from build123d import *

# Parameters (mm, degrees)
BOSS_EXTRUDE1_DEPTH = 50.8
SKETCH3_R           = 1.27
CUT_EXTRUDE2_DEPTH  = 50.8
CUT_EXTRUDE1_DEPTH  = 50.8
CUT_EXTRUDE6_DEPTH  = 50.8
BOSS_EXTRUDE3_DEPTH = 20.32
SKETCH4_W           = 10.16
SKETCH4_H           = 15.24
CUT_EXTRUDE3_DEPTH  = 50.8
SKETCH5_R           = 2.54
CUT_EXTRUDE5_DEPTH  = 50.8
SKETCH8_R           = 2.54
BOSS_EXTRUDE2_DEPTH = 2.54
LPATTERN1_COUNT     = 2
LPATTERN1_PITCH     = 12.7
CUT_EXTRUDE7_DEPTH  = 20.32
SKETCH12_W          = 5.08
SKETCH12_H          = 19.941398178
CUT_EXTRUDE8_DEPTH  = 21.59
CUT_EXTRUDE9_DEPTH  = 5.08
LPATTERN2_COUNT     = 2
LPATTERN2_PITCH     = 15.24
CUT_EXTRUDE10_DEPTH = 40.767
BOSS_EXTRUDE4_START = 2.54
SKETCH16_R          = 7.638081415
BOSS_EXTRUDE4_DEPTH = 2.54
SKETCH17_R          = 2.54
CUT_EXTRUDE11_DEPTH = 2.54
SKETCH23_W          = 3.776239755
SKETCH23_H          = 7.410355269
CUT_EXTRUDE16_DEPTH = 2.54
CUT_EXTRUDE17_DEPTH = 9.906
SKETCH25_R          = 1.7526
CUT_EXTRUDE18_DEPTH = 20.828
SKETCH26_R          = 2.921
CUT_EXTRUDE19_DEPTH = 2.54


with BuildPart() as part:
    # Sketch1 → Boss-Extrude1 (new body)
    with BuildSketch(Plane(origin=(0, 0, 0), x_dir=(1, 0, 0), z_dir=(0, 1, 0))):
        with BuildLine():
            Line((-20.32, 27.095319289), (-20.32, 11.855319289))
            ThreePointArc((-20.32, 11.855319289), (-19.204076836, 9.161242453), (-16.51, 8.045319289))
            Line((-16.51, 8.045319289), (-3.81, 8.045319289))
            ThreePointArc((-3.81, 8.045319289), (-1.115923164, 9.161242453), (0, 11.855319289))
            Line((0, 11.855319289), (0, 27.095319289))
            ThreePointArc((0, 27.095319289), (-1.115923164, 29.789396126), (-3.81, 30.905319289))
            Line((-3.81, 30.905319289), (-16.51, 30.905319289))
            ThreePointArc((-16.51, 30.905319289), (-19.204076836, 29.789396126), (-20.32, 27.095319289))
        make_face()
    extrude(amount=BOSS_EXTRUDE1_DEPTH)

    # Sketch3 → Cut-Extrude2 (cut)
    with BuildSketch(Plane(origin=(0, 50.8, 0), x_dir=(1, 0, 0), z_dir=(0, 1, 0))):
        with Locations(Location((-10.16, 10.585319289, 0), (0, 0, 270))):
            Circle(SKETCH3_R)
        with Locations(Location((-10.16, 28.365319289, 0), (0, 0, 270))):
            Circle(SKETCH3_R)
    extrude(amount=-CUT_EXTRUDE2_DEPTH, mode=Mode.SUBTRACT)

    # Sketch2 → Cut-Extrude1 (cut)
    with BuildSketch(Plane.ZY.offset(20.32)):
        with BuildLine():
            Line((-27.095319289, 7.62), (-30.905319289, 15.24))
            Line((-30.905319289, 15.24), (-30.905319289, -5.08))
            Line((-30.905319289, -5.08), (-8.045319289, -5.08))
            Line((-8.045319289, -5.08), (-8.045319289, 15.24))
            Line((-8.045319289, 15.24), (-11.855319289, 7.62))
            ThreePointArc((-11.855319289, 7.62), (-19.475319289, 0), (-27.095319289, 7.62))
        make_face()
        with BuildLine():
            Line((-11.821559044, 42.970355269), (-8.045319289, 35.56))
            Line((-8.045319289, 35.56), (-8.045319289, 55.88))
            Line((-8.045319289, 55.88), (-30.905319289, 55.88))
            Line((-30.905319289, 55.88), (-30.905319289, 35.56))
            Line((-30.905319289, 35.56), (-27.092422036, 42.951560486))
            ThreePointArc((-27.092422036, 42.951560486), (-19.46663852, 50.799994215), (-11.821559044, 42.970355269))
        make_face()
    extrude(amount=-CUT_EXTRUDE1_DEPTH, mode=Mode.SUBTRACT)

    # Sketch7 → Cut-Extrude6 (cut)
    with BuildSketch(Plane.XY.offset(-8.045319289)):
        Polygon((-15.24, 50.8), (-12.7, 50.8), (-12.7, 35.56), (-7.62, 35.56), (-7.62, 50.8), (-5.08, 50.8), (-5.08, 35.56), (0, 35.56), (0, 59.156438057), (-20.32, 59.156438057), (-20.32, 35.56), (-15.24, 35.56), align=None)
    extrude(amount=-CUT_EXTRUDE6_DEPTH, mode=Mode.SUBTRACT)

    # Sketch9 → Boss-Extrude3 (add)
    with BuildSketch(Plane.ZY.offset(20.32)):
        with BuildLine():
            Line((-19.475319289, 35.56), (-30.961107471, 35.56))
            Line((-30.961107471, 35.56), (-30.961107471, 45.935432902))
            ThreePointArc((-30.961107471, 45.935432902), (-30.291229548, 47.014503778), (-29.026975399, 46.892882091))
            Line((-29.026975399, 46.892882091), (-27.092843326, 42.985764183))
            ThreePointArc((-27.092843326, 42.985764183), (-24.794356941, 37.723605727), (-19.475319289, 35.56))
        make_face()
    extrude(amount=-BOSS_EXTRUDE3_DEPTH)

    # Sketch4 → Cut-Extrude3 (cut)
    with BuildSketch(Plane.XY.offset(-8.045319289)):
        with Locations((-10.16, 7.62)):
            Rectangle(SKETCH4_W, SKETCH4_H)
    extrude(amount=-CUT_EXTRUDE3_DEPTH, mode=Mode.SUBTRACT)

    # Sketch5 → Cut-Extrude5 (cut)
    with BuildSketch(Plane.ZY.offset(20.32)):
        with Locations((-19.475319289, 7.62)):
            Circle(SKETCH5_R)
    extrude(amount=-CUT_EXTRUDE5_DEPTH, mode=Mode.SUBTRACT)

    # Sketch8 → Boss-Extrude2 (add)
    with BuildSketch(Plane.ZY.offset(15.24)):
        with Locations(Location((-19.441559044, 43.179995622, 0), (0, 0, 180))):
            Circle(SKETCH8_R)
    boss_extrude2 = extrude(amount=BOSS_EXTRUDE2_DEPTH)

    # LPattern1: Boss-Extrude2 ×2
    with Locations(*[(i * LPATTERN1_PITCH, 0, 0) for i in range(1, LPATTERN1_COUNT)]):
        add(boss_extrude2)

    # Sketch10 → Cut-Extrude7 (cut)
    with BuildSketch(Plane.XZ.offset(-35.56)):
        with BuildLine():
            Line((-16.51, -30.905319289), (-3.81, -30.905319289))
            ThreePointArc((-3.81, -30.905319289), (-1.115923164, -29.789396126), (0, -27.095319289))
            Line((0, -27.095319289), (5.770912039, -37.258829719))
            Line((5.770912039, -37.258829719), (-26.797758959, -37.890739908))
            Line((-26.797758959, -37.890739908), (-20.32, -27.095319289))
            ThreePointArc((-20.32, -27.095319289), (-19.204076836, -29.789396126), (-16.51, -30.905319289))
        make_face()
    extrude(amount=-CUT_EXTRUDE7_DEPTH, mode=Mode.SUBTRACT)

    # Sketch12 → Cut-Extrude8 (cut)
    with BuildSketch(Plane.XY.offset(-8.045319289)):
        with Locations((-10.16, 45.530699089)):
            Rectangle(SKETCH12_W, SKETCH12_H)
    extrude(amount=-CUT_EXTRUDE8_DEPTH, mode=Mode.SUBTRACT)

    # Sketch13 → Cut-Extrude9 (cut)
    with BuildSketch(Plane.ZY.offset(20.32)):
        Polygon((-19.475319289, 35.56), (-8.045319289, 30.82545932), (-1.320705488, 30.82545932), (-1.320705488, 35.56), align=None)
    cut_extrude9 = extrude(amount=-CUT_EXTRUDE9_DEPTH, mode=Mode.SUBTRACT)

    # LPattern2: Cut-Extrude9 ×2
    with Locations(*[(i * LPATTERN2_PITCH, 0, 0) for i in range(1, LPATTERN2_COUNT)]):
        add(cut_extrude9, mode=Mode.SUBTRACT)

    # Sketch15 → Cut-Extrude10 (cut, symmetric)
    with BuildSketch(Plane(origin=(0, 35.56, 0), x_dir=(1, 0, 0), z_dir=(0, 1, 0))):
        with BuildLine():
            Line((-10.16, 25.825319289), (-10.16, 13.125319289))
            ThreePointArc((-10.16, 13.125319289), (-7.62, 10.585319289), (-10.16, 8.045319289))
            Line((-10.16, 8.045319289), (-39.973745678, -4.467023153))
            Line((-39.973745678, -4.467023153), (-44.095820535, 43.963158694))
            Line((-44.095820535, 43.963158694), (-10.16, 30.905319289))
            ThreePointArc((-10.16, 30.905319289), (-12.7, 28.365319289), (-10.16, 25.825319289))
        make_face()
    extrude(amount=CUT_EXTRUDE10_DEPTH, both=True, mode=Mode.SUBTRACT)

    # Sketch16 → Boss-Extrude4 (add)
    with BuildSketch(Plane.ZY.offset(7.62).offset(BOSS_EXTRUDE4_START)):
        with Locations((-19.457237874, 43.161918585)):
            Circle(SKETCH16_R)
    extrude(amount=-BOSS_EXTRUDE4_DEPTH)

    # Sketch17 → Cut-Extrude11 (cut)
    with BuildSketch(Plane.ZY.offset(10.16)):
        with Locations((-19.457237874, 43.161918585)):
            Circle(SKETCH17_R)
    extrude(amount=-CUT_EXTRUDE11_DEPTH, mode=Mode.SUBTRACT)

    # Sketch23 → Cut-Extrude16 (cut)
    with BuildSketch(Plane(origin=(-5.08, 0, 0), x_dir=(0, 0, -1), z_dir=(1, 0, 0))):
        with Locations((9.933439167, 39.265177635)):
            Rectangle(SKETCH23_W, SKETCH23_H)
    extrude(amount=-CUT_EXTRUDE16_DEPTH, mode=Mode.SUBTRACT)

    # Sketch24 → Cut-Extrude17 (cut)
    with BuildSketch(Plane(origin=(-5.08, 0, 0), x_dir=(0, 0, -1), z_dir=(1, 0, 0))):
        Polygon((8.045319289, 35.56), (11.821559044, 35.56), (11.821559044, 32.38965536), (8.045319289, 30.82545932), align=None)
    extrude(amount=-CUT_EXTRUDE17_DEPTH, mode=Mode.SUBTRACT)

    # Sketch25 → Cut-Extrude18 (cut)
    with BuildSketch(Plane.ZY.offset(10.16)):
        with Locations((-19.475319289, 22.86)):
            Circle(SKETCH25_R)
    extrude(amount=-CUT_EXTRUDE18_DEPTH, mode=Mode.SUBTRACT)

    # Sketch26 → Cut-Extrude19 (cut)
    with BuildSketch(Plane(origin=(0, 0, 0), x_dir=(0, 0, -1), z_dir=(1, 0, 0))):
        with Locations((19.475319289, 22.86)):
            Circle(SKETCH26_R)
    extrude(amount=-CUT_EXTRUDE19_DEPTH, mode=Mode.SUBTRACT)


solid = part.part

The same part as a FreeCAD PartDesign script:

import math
import FreeCAD as App
import Part
import Sketcher
Q = App.Units.Quantity


def add_polygon(sketch, points):
    """Adds a closed chain of lines whose ends are joined by coincident constraints."""
    first, n = sketch.GeometryCount, len(points)
    for a, b in zip(points, points[1:] + points[:1]):
        sketch.addGeometry(Part.LineSegment(App.Vector(*a, 0), App.Vector(*b, 0)), False)
    for i in range(n):
        sketch.addConstraint(Sketcher.Constraint("Coincident", first + i, 2, first + (i + 1) % n, 1))

doc = App.newDocument("Part")
body = doc.addObject("PartDesign::Body", "Body")

# Sketch on XZ plane
sketch1 = body.newObject("Sketcher::SketchObject", "Sketch")
sketch1.AttachmentSupport = (doc.getObject("XZ_Plane"), [""])
sketch1.MapMode = "FlatFace"
sketch1.addGeometry(Part.LineSegment(App.Vector(-20.32, -27.095319, 0), App.Vector(-20.32, -11.855319, 0)), False)
sketch1.addGeometry(Part.ArcOfCircle(Part.Circle(App.Vector(-16.51, -11.855319, 0), App.Vector(0, 0, 1), 3.81), math.radians(90), math.radians(180)), False)
sketch1.addGeometry(Part.LineSegment(App.Vector(-16.51, -8.045319, 0), App.Vector(-3.81, -8.045319, 0)), False)
sketch1.addGeometry(Part.ArcOfCircle(Part.Circle(App.Vector(-3.81, -11.855319, 0), App.Vector(0, 0, 1), 3.81), math.radians(0), math.radians(90)), False)
sketch1.addGeometry(Part.LineSegment(App.Vector(0, -11.855319, 0), App.Vector(0, -27.095319, 0)), False)
sketch1.addGeometry(Part.ArcOfCircle(Part.Circle(App.Vector(-3.81, -27.095319, 0), App.Vector(0, 0, 1), 3.81), math.radians(-90), math.radians(0)), False)
sketch1.addGeometry(Part.LineSegment(App.Vector(-3.81, -30.905319, 0), App.Vector(-16.51, -30.905319, 0)), False)
sketch1.addGeometry(Part.ArcOfCircle(Part.Circle(App.Vector(-16.51, -27.095319, 0), App.Vector(0, 0, 1), 3.81), math.radians(180), math.radians(270)), False)
sketch1.addConstraint(Sketcher.Constraint("Tangent", 0, 2, 1, 2))
sketch1.addConstraint(Sketcher.Constraint("Tangent", 1, 1, 2, 1))
sketch1.addConstraint(Sketcher.Constraint("Tangent", 2, 2, 3, 2))
sketch1.addConstraint(Sketcher.Constraint("Tangent", 3, 1, 4, 1))
sketch1.addConstraint(Sketcher.Constraint("Tangent", 4, 2, 5, 2))
sketch1.addConstraint(Sketcher.Constraint("Tangent", 5, 1, 6, 1))
sketch1.addConstraint(Sketcher.Constraint("Tangent", 6, 2, 7, 2))
sketch1.addConstraint(Sketcher.Constraint("Tangent", 7, 1, 0, 1))
sketch1.addConstraint(Sketcher.Constraint("Vertical", 0))
sketch1.addConstraint(Sketcher.Constraint("Horizontal", 2))
sketch1.addConstraint(Sketcher.Constraint("Vertical", 4))
sketch1.addConstraint(Sketcher.Constraint("Horizontal", 6))
sketch1.addConstraint(Sketcher.Constraint("Equal", 1, 3))
sketch1.addConstraint(Sketcher.Constraint("Equal", 3, 5))
sketch1.addConstraint(Sketcher.Constraint("Equal", 5, 7))
sketch1.addConstraint(Sketcher.Constraint("PointOnObject", 3, 1, -2))
sketch1.addConstraint(Sketcher.Constraint("Radius", 1, Q("0.15 in")))
sketch1.addConstraint(Sketcher.Constraint("DistanceX", 2, 1, 2, 2, Q("0.5 in")))
sketch1.addConstraint(Sketcher.Constraint("DistanceY", 0, 1, 0, 2, Q("0.6 in")))
sketch1.addConstraint(Sketcher.Constraint("DistanceY", 1, 3, -1, 1, Q("11.855319 mm")))
pad1 = body.newObject("PartDesign::Pad", "Pad")
pad1.Profile = sketch1
pad1.Length = Q("2 in")
pad1.Reversed = True

# Sketch on XZ plane
sketch2 = body.newObject("Sketcher::SketchObject", "Sketch001")
sketch2.AttachmentSupport = (doc.getObject("XZ_Plane"), [""])
sketch2.MapMode = "FlatFace"
sketch2.AttachmentOffset = App.Placement(App.Vector(0, 0, -2 * 25.4), App.Rotation())
sketch2.addGeometry(Part.Circle(App.Vector(-10.16, -10.585319, 0), App.Vector(0, 0, 1), 1.27), False)
sketch2.addGeometry(Part.Circle(App.Vector(-10.16, -28.365319, 0), App.Vector(0, 0, 1), 1.27), False)
sketch2.addConstraint(Sketcher.Constraint("Equal", 0, 1))
sketch2.addConstraint(Sketcher.Constraint("Vertical", 0, 3, 1, 3))
sketch2.addConstraint(Sketcher.Constraint("Diameter", 0, Q("0.1 in")))
sketch2.addConstraint(Sketcher.Constraint("DistanceX", 0, 3, -1, 1, Q("0.4 in")))
sketch2.addConstraint(Sketcher.Constraint("DistanceY", 1, 3, 0, 3, Q("0.7 in")))
sketch2.addConstraint(Sketcher.Constraint("DistanceY", 0, 3, -1, 1, Q("10.585319 mm")))
pocket1 = body.newObject("PartDesign::Pocket", "Pocket")
pocket1.Profile = sketch2
pocket1.Length = Q("2 in")
pocket1.Reversed = True

# Sketch on YZ plane
sketch3 = body.newObject("Sketcher::SketchObject", "Sketch002")
sketch3.AttachmentSupport = (doc.getObject("YZ_Plane"), [""])
sketch3.MapMode = "FlatFace"
sketch3.AttachmentOffset = App.Placement(App.Vector(0, 0, -0.8 * 25.4), App.Rotation())
sketch3.addGeometry(Part.LineSegment(App.Vector(7.62, -27.095319, 0), App.Vector(15.24, -30.905319, 0)), False)
sketch3.addGeometry(Part.LineSegment(App.Vector(15.24, -30.905319, 0), App.Vector(-5.08, -30.905319, 0)), False)
sketch3.addGeometry(Part.LineSegment(App.Vector(-5.08, -30.905319, 0), App.Vector(-5.08, -8.045319, 0)), False)
sketch3.addGeometry(Part.LineSegment(App.Vector(-5.08, -8.045319, 0), App.Vector(15.24, -8.045319, 0)), False)
sketch3.addGeometry(Part.LineSegment(App.Vector(15.24, -8.045319, 0), App.Vector(7.62, -11.855319, 0)), False)
sketch3.addGeometry(Part.ArcOfCircle(Part.Circle(App.Vector(7.62, -19.475319, 0), App.Vector(0, 0, 1), 7.62), math.radians(90), math.radians(270)), False)
sketch3.addGeometry(Part.LineSegment(App.Vector(42.970355, -11.821559, 0), App.Vector(35.56, -8.045319, 0)), False)
sketch3.addGeometry(Part.LineSegment(App.Vector(35.56, -8.045319, 0), App.Vector(55.88, -8.045319, 0)), False)
sketch3.addGeometry(Part.LineSegment(App.Vector(55.88, -8.045319, 0), App.Vector(55.88, -30.905319, 0)), False)
sketch3.addGeometry(Part.LineSegment(App.Vector(55.88, -30.905319, 0), App.Vector(35.56, -30.905319, 0)), False)
sketch3.addGeometry(Part.LineSegment(App.Vector(35.56, -30.905319, 0), App.Vector(42.95156, -27.092422, 0)), False)
sketch3.addGeometry(Part.ArcOfCircle(Part.Circle(App.Vector(43.161919, -19.457238, 0), App.Vector(0, 0, 1), 7.638081), math.radians(-91.578165), math.radians(91.437131)), False)
sketch3.addConstraint(Sketcher.Constraint("Coincident", 0, 2, 1, 1))
sketch3.addConstraint(Sketcher.Constraint("Coincident", 1, 2, 2, 1))
sketch3.addConstraint(Sketcher.Constraint("Coincident", 2, 2, 3, 1))
sketch3.addConstraint(Sketcher.Constraint("Coincident", 3, 2, 4, 1))
sketch3.addConstraint(Sketcher.Constraint("Coincident", 4, 2, 5, 1))
sketch3.addConstraint(Sketcher.Constraint("Coincident", 5, 2, 0, 1))
sketch3.addConstraint(Sketcher.Constraint("Coincident", 6, 2, 7, 1))
sketch3.addConstraint(Sketcher.Constraint("Coincident", 7, 2, 8, 1))
sketch3.addConstraint(Sketcher.Constraint("Coincident", 8, 2, 9, 1))
sketch3.addConstraint(Sketcher.Constraint("Coincident", 9, 2, 10, 1))
sketch3.addConstraint(Sketcher.Constraint("Coincident", 10, 2, 11, 1))
sketch3.addConstraint(Sketcher.Constraint("Coincident", 11, 2, 6, 1))
sketch3.addConstraint(Sketcher.Constraint("Horizontal", 1))
sketch3.addConstraint(Sketcher.Constraint("Vertical", 2))
sketch3.addConstraint(Sketcher.Constraint("Horizontal", 3))
sketch3.addConstraint(Sketcher.Constraint("Horizontal", 7))
sketch3.addConstraint(Sketcher.Constraint("Vertical", 8))
sketch3.addConstraint(Sketcher.Constraint("Horizontal", 9))
sketch3.addConstraint(Sketcher.Constraint("Horizontal", 3, 2, 6, 2))
sketch3.addConstraint(Sketcher.Constraint("Horizontal", 1, 2, 8, 2))
sketch3.addConstraint(Sketcher.Constraint("Vertical", 0, 2, 3, 2))
sketch3.addConstraint(Sketcher.Constraint("Vertical", 5, 3, 4, 2))
sketch3.addConstraint(Sketcher.Constraint("Vertical", 4, 2, 5, 2))
sketch3.addConstraint(Sketcher.Constraint("Vertical", 6, 2, 9, 2))
sketch3.addConstraint(Sketcher.Constraint("Equal", 3, 7))
sketch3.addConstraint(Sketcher.Constraint("Equal", 0, 4))
sketch3.addConstraint(Sketcher.Constraint("Equal", 6, 10))
sketch3.addConstraint(Sketcher.Constraint("Radius", 5, Q("0.3 in")))
sketch3.addConstraint(Sketcher.Constraint("DistanceX", 1, 2, 1, 1, Q("0.8 in")))
sketch3.addConstraint(Sketcher.Constraint("DistanceY", 2, 1, 2, 2, Q("0.9 in")))
sketch3.addConstraint(Sketcher.Constraint("DistanceX", -1, 1, 5, 3, Q("0.3 in")))
sketch3.addConstraint(Sketcher.Constraint("DistanceX", -1, 1, 0, 2, Q("0.6 in")))
sketch3.addConstraint(Sketcher.Constraint("DistanceX", -1, 1, 6, 2, Q("1.4 in")))
sketch3.addConstraint(Sketcher.Constraint("Radius", 11, Q("7.638081 mm")))
sketch3.addConstraint(Sketcher.Constraint("Distance", 6, Q("8.317052 mm")))
sketch3.addConstraint(Sketcher.Constraint("DistanceY", 5, 3, -1, 1, Q("19.475319 mm")))
sketch3.addConstraint(Sketcher.Constraint("DistanceX", -1, 1, 11, 3, Q("43.161919 mm")))
sketch3.addConstraint(Sketcher.Constraint("DistanceX", -1, 1, 10, 2, Q("42.95156 mm")))
pocket2 = body.newObject("PartDesign::Pocket", "Pocket001")
pocket2.Profile = sketch3
pocket2.Length = Q("2 in")
pocket2.Reversed = True

# Sketch on XY plane
sketch4 = body.newObject("Sketcher::SketchObject", "Sketch003")
sketch4.AttachmentSupport = (doc.getObject("XY_Plane"), [""])
sketch4.MapMode = "FlatFace"
sketch4.AttachmentOffset = App.Placement(App.Vector(0, 0, -8.045319), App.Rotation())
add_polygon(sketch4, [(-15.24, 50.8), (-12.7, 50.8), (-12.7, 35.56), (-7.62, 35.56), (-7.62, 50.8), (-5.08, 50.8), (-5.08, 35.56), (0, 35.56), (0, 59.156438), (-20.32, 59.156438), (-20.32, 35.56), (-15.24, 35.56)])  # lines 0-11
sketch4.addConstraint(Sketcher.Constraint("Horizontal", 0))
sketch4.addConstraint(Sketcher.Constraint("Vertical", 1))
sketch4.addConstraint(Sketcher.Constraint("Horizontal", 2))
sketch4.addConstraint(Sketcher.Constraint("Vertical", 3))
sketch4.addConstraint(Sketcher.Constraint("Horizontal", 4))
sketch4.addConstraint(Sketcher.Constraint("Vertical", 5))
sketch4.addConstraint(Sketcher.Constraint("Horizontal", 6))
sketch4.addConstraint(Sketcher.Constraint("Vertical", 7))
sketch4.addConstraint(Sketcher.Constraint("Horizontal", 8))
sketch4.addConstraint(Sketcher.Constraint("Vertical", 9))
sketch4.addConstraint(Sketcher.Constraint("Horizontal", 10))
sketch4.addConstraint(Sketcher.Constraint("Vertical", 11))
sketch4.addConstraint(Sketcher.Constraint("PointOnObject", 6, 2, -2))
sketch4.addConstraint(Sketcher.Constraint("Horizontal", 0, 2, 3, 2))
sketch4.addConstraint(Sketcher.Constraint("Horizontal", 2, 2, 5, 2))
sketch4.addConstraint(Sketcher.Constraint("Horizontal", 6, 2, 9, 2))
sketch4.addConstraint(Sketcher.Constraint("Equal", 0, 4))
sketch4.addConstraint(Sketcher.Constraint("Equal", 2, 6))
sketch4.addConstraint(Sketcher.Constraint("Equal", 6, 10))
sketch4.addConstraint(Sketcher.Constraint("DistanceX", 0, 1, 0, 2, Q("0.1 in")))
sketch4.addConstraint(Sketcher.Constraint("DistanceX", 2, 1, 2, 2, Q("0.2 in")))
sketch4.addConstraint(Sketcher.Constraint("DistanceY", 1, 2, 1, 1, Q("0.6 in")))
sketch4.addConstraint(Sketcher.Constraint("DistanceY", -1, 1, 0, 2, Q("2 in")))
sketch4.addConstraint(Sketcher.Constraint("DistanceY", 7, 1, 7, 2, Q("23.596438 mm")))
pocket3 = body.newObject("PartDesign::Pocket", "Pocket002")
pocket3.Profile = sketch4
pocket3.Length = Q("2 in")

# Sketch on YZ plane
sketch5 = body.newObject("Sketcher::SketchObject", "Sketch004")
sketch5.AttachmentSupport = (doc.getObject("YZ_Plane"), [""])
sketch5.MapMode = "FlatFace"
sketch5.AttachmentOffset = App.Placement(App.Vector(0, 0, -0.8 * 25.4), App.Rotation())
sketch5.addGeometry(Part.LineSegment(App.Vector(35.56, -30.961107, 0), App.Vector(35.56, -19.475319, 0)), False)
sketch5.addGeometry(Part.ArcOfCircle(Part.Circle(App.Vector(43.18, -19.475319, 0), App.Vector(0, 0, 1), 7.62), math.radians(180), math.radians(268.539357)), False)
sketch5.addGeometry(Part.LineSegment(App.Vector(42.985764, -27.092843, 0), App.Vector(46.892882, -29.026975, 0)), False)
sketch5.addGeometry(Part.ArcOfCircle(Part.Circle(App.Vector(45.935433, -29.757059, 0), App.Vector(0, 0, 1), 1.204048), math.radians(-90), math.radians(37.326619)), False)
sketch5.addGeometry(Part.LineSegment(App.Vector(45.935433, -30.961107, 0), App.Vector(35.56, -30.961107, 0)), False)
sketch5.addConstraint(Sketcher.Constraint("Tangent", 0, 2, 1, 1))
sketch5.addConstraint(Sketcher.Constraint("Coincident", 1, 2, 2, 1))
sketch5.addConstraint(Sketcher.Constraint("Coincident", 2, 2, 3, 2))
sketch5.addConstraint(Sketcher.Constraint("Tangent", 3, 1, 4, 1))
sketch5.addConstraint(Sketcher.Constraint("Coincident", 4, 2, 0, 1))
sketch5.addConstraint(Sketcher.Constraint("Vertical", 0))
sketch5.addConstraint(Sketcher.Constraint("Horizontal", 4))
sketch5.addConstraint(Sketcher.Constraint("Radius", 1, Q("0.3 in")))
sketch5.addConstraint(Sketcher.Constraint("DistanceX", -1, 1, 1, 3, Q("1.7 in")))
sketch5.addConstraint(Sketcher.Constraint("Radius", 3, Q("1.204048 mm")))
sketch5.addConstraint(Sketcher.Constraint("DistanceY", 0, 1, 0, 2, Q("11.485788 mm")))
sketch5.addConstraint(Sketcher.Constraint("DistanceX", 4, 2, 4, 1, Q("10.375433 mm")))
sketch5.addConstraint(Sketcher.Constraint("DistanceY", 1, 3, -1, 1, Q("19.475319 mm")))
sketch5.addConstraint(Sketcher.Constraint("DistanceX", 1, 2, 3, 3, Q("2.949669 mm")))
sketch5.addConstraint(Sketcher.Constraint("DistanceX", 3, 3, 2, 2, Q("0.957449 mm")))
pad2 = body.newObject("PartDesign::Pad", "Pad001")
pad2.Profile = sketch5
pad2.Length = Q("0.8 in")

# Sketch on XY plane
sketch6 = body.newObject("Sketcher::SketchObject", "Sketch005")
sketch6.AttachmentSupport = (doc.getObject("XY_Plane"), [""])
sketch6.MapMode = "FlatFace"
sketch6.AttachmentOffset = App.Placement(App.Vector(0, 0, -8.045319), App.Rotation())
add_polygon(sketch6, [(-15.24, 15.24), (-15.24, 0), (-5.08, 0), (-5.08, 15.24)])  # lines 0-3
sketch6.addConstraint(Sketcher.Constraint("Vertical", 0))
sketch6.addConstraint(Sketcher.Constraint("Horizontal", 1))
sketch6.addConstraint(Sketcher.Constraint("Vertical", 2))
sketch6.addConstraint(Sketcher.Constraint("Horizontal", 3))
sketch6.addConstraint(Sketcher.Constraint("PointOnObject", 0, 2, -1))
sketch6.addConstraint(Sketcher.Constraint("DistanceX", 1, 1, 1, 2, Q("0.4 in")))
sketch6.addConstraint(Sketcher.Constraint("DistanceY", 0, 2, 0, 1, Q("0.6 in")))
sketch6.addConstraint(Sketcher.Constraint("DistanceX", 0, 2, -1, 1, Q("0.6 in")))
pocket4 = body.newObject("PartDesign::Pocket", "Pocket003")
pocket4.Profile = sketch6
pocket4.Length = Q("2 in")

# Sketch on YZ plane
sketch7 = body.newObject("Sketcher::SketchObject", "Sketch006")
sketch7.AttachmentSupport = (doc.getObject("YZ_Plane"), [""])
sketch7.MapMode = "FlatFace"
sketch7.AttachmentOffset = App.Placement(App.Vector(0, 0, -0.8 * 25.4), App.Rotation())
sketch7.addGeometry(Part.Circle(App.Vector(7.62, -19.475319, 0), App.Vector(0, 0, 1), 2.54), False)
sketch7.addConstraint(Sketcher.Constraint("Diameter", 0, Q("0.2 in")))
sketch7.addConstraint(Sketcher.Constraint("DistanceX", -1, 1, 0, 3, Q("0.3 in")))
sketch7.addConstraint(Sketcher.Constraint("DistanceY", 0, 3, -1, 1, Q("19.475319 mm")))
pocket5 = body.newObject("PartDesign::Pocket", "Pocket004")
pocket5.Profile = sketch7
pocket5.Length = Q("2 in")
pocket5.Reversed = True

# Sketch on YZ plane
sketch8 = body.newObject("Sketcher::SketchObject", "Sketch007")
sketch8.AttachmentSupport = (doc.getObject("YZ_Plane"), [""])
sketch8.MapMode = "FlatFace"
sketch8.AttachmentOffset = App.Placement(App.Vector(0, 0, -0.6 * 25.4), App.Rotation())
sketch8.addGeometry(Part.Circle(App.Vector(43.179996, -19.441559, 0), App.Vector(0, 0, 1), 2.54), False)
sketch8.addConstraint(Sketcher.Constraint("Diameter", 0, Q("0.2 in")))
sketch8.addConstraint(Sketcher.Constraint("DistanceX", -1, 1, 0, 3, Q("1.6999998 in")))
sketch8.addConstraint(Sketcher.Constraint("DistanceY", 0, 3, -1, 1, Q("19.441559 mm")))
pad3 = body.newObject("PartDesign::Pad", "Pad002")
pad3.Profile = sketch8
pad3.Length = Q("0.1 in")
pad3.Reversed = True
doc.recompute()

linearpattern = body.newObject("PartDesign::LinearPattern", "LinearPattern")
linearpattern.Originals = [pad3]
linearpattern.Direction = (doc.getObject("X_Axis"), [""])
linearpattern.Mode = "offset"
linearpattern.Offset = Q("0.5 in")
linearpattern.Occurrences = 2
body.Tip = linearpattern

# Sketch on XZ plane
sketch9 = body.newObject("Sketcher::SketchObject", "Sketch008")
sketch9.AttachmentSupport = (doc.getObject("XZ_Plane"), [""])
sketch9.MapMode = "FlatFace"
sketch9.AttachmentOffset = App.Placement(App.Vector(0, 0, -1.4 * 25.4), App.Rotation())
sketch9.addGeometry(Part.LineSegment(App.Vector(-3.81, -30.905319, 0), App.Vector(-16.51, -30.905319, 0)), False)
sketch9.addGeometry(Part.ArcOfCircle(Part.Circle(App.Vector(-16.51, -27.095319, 0), App.Vector(0, 0, 1), 3.81), math.radians(180), math.radians(270)), False)
sketch9.addGeometry(Part.LineSegment(App.Vector(-20.32, -27.095319, 0), App.Vector(-26.797759, -37.89074, 0)), False)
sketch9.addGeometry(Part.LineSegment(App.Vector(-26.797759, -37.89074, 0), App.Vector(5.770912, -37.25883, 0)), False)
sketch9.addGeometry(Part.LineSegment(App.Vector(5.770912, -37.25883, 0), App.Vector(0, -27.095319, 0)), False)
sketch9.addGeometry(Part.ArcOfCircle(Part.Circle(App.Vector(-3.81, -27.095319, 0), App.Vector(0, 0, 1), 3.81), math.radians(-90), math.radians(0)), False)
sketch9.addConstraint(Sketcher.Constraint("Tangent", 0, 2, 1, 2))
sketch9.addConstraint(Sketcher.Constraint("Coincident", 1, 1, 2, 1))
sketch9.addConstraint(Sketcher.Constraint("Coincident", 2, 2, 3, 1))
sketch9.addConstraint(Sketcher.Constraint("Coincident", 3, 2, 4, 1))
sketch9.addConstraint(Sketcher.Constraint("Coincident", 4, 2, 5, 2))
sketch9.addConstraint(Sketcher.Constraint("Tangent", 5, 1, 0, 1))
sketch9.addConstraint(Sketcher.Constraint("Horizontal", 0))
sketch9.addConstraint(Sketcher.Constraint("Equal", 1, 5))
sketch9.addConstraint(Sketcher.Constraint("PointOnObject", 4, 2, -2))
sketch9.addConstraint(Sketcher.Constraint("Horizontal", 5, 3, 1, 1))
sketch9.addConstraint(Sketcher.Constraint("Horizontal", 1, 1, 4, 2))
sketch9.addConstraint(Sketcher.Constraint("Radius", 1, Q("0.15 in")))
sketch9.addConstraint(Sketcher.Constraint("DistanceX", 0, 2, 0, 1, Q("0.5 in")))
sketch9.addConstraint(Sketcher.Constraint("Distance", 3, Q("32.574801 mm")))
sketch9.addConstraint(Sketcher.Constraint("DistanceY", 1, 3, -1, 1, Q("27.095319 mm")))
sketch9.addConstraint(Sketcher.Constraint("DistanceX", 2, 2, -1, 1, Q("26.797759 mm")))
sketch9.addConstraint(Sketcher.Constraint("DistanceY", 2, 2, -1, 1, Q("37.89074 mm")))
sketch9.addConstraint(Sketcher.Constraint("DistanceY", 3, 2, -1, 1, Q("37.25883 mm")))
pocket6 = body.newObject("PartDesign::Pocket", "Pocket005")
pocket6.Profile = sketch9
pocket6.Length = Q("0.8 in")

# Sketch on XY plane
sketch10 = body.newObject("Sketcher::SketchObject", "Sketch009")
sketch10.AttachmentSupport = (doc.getObject("XY_Plane"), [""])
sketch10.MapMode = "FlatFace"
sketch10.AttachmentOffset = App.Placement(App.Vector(0, 0, -8.045319), App.Rotation())
add_polygon(sketch10, [(-12.7, 55.501398), (-12.7, 35.56), (-7.62, 35.56), (-7.62, 55.501398)])  # lines 0-3
sketch10.addConstraint(Sketcher.Constraint("Vertical", 0))
sketch10.addConstraint(Sketcher.Constraint("Horizontal", 1))
sketch10.addConstraint(Sketcher.Constraint("Vertical", 2))
sketch10.addConstraint(Sketcher.Constraint("Horizontal", 3))
sketch10.addConstraint(Sketcher.Constraint("DistanceX", 1, 1, 1, 2, Q("0.2 in")))
sketch10.addConstraint(Sketcher.Constraint("DistanceX", 0, 2, -1, 1, Q("0.5 in")))
sketch10.addConstraint(Sketcher.Constraint("DistanceY", -1, 1, 0, 2, Q("1.4 in")))
sketch10.addConstraint(Sketcher.Constraint("DistanceY", 0, 2, 0, 1, Q("19.941398 mm")))
pocket7 = body.newObject("PartDesign::Pocket", "Pocket006")
pocket7.Profile = sketch10
pocket7.Length = Q("0.85 in")

# Sketch on YZ plane
sketch11 = body.newObject("Sketcher::SketchObject", "Sketch010")
sketch11.AttachmentSupport = (doc.getObject("YZ_Plane"), [""])
sketch11.MapMode = "FlatFace"
sketch11.AttachmentOffset = App.Placement(App.Vector(0, 0, -0.8 * 25.4), App.Rotation())
add_polygon(sketch11, [(35.56, -19.475319), (30.825459, -8.045319), (30.825459, -1.320705), (35.56, -1.320705)])  # lines 0-3
sketch11.addConstraint(Sketcher.Constraint("Vertical", 1))
sketch11.addConstraint(Sketcher.Constraint("Horizontal", 2))
sketch11.addConstraint(Sketcher.Constraint("Vertical", 3))
sketch11.addConstraint(Sketcher.Constraint("DistanceX", -1, 1, 2, 2, Q("1.4 in")))
sketch11.addConstraint(Sketcher.Constraint("DistanceY", 3, 2, 0, 2, Q("0.45 in")))
sketch11.addConstraint(Sketcher.Constraint("DistanceX", 2, 1, 2, 2, Q("4.734541 mm")))
sketch11.addConstraint(Sketcher.Constraint("DistanceY", 1, 1, 1, 2, Q("6.724614 mm")))
sketch11.addConstraint(Sketcher.Constraint("DistanceY", 0, 2, -1, 1, Q("8.045319 mm")))
pocket8 = body.newObject("PartDesign::Pocket", "Pocket007")
pocket8.Profile = sketch11
pocket8.Length = Q("0.2 in")
pocket8.Reversed = True
doc.recompute()

linearpattern2 = body.newObject("PartDesign::LinearPattern", "LinearPattern001")
linearpattern2.Originals = [pocket8]
linearpattern2.Direction = (doc.getObject("X_Axis"), [""])
linearpattern2.Mode = "offset"
linearpattern2.Offset = Q("0.6 in")
linearpattern2.Occurrences = 2
body.Tip = linearpattern2

# Sketch on XZ plane
sketch12 = body.newObject("Sketcher::SketchObject", "Sketch011")
sketch12.AttachmentSupport = (doc.getObject("XZ_Plane"), [""])
sketch12.MapMode = "FlatFace"
sketch12.AttachmentOffset = App.Placement(App.Vector(0, 0, -1.4 * 25.4), App.Rotation())
sketch12.addGeometry(Part.LineSegment(App.Vector(-10.16, -13.125319, 0), App.Vector(-10.16, -25.825319, 0)), False)
sketch12.addGeometry(Part.ArcOfCircle(Part.Circle(App.Vector(-10.16, -28.365319, 0), App.Vector(0, 0, 1), 2.54), math.radians(90), math.radians(270)), False)
sketch12.addGeometry(Part.LineSegment(App.Vector(-10.16, -30.905319, 0), App.Vector(-44.095821, -43.963159, 0)), False)
sketch12.addGeometry(Part.LineSegment(App.Vector(-44.095821, -43.963159, 0), App.Vector(-39.973746, 4.467023, 0)), False)
sketch12.addGeometry(Part.LineSegment(App.Vector(-39.973746, 4.467023, 0), App.Vector(-10.16, -8.045319, 0)), False)
sketch12.addGeometry(Part.ArcOfCircle(Part.Circle(App.Vector(-10.16, -10.585319, 0), App.Vector(0, 0, 1), 2.54), math.radians(-90), math.radians(90)), False)
sketch12.addConstraint(Sketcher.Constraint("Coincident", 0, 2, 1, 1))
sketch12.addConstraint(Sketcher.Constraint("Coincident", 1, 2, 2, 1))
sketch12.addConstraint(Sketcher.Constraint("Coincident", 2, 2, 3, 1))
sketch12.addConstraint(Sketcher.Constraint("Coincident", 3, 2, 4, 1))
sketch12.addConstraint(Sketcher.Constraint("Coincident", 4, 2, 5, 2))
sketch12.addConstraint(Sketcher.Constraint("Coincident", 5, 1, 0, 1))
sketch12.addConstraint(Sketcher.Constraint("Vertical", 0))
sketch12.addConstraint(Sketcher.Constraint("Equal", 1, 5))
sketch12.addConstraint(Sketcher.Constraint("Vertical", 1, 3, 5, 3))
sketch12.addConstraint(Sketcher.Constraint("Vertical", 5, 3, 0, 2))
sketch12.addConstraint(Sketcher.Constraint("Vertical", 0, 2, 1, 2))
sketch12.addConstraint(Sketcher.Constraint("Vertical", 1, 2, 4, 2))
sketch12.addConstraint(Sketcher.Constraint("Radius", 1, Q("0.1 in")))
sketch12.addConstraint(Sketcher.Constraint("DistanceY", 0, 2, 0, 1, Q("0.5 in")))
sketch12.addConstraint(Sketcher.Constraint("DistanceX", 1, 3, -1, 1, Q("0.4 in")))
sketch12.addConstraint(Sketcher.Constraint("DistanceY", 2, 2, 3, 2, Q("1.9067001 in")))
sketch12.addConstraint(Sketcher.Constraint("Distance", 2, Q("36.361341 mm")))
sketch12.addConstraint(Sketcher.Constraint("DistanceY", 1, 3, -1, 1, Q("28.365319 mm")))
sketch12.addConstraint(Sketcher.Constraint("DistanceX", 2, 2, -1, 1, Q("44.095821 mm")))
sketch12.addConstraint(Sketcher.Constraint("Distance", 3, Q("48.605288 mm")))
pocket9 = body.newObject("PartDesign::Pocket", "Pocket008")
pocket9.Profile = sketch12
pocket9.Length = Q("3.21 in")
pocket9.Midplane = True

# Sketch on YZ plane
sketch13 = body.newObject("Sketcher::SketchObject", "Sketch012")
sketch13.AttachmentSupport = (doc.getObject("YZ_Plane"), [""])
sketch13.MapMode = "FlatFace"
sketch13.AttachmentOffset = App.Placement(App.Vector(0, 0, -0.4 * 25.4), App.Rotation())
sketch13.addGeometry(Part.Circle(App.Vector(43.161919, -19.457238, 0), App.Vector(0, 0, 1), 7.638081), False)
sketch13.addConstraint(Sketcher.Constraint("Diameter", 0, Q("15.276163 mm")))
sketch13.addConstraint(Sketcher.Constraint("DistanceX", -1, 1, 0, 3, Q("43.161919 mm")))
sketch13.addConstraint(Sketcher.Constraint("DistanceY", 0, 3, -1, 1, Q("19.457238 mm")))
pad4 = body.newObject("PartDesign::Pad", "Pad003")
pad4.Profile = sketch13
pad4.Length = Q("0.1 in")

# Sketch on YZ plane
sketch14 = body.newObject("Sketcher::SketchObject", "Sketch013")
sketch14.AttachmentSupport = (doc.getObject("YZ_Plane"), [""])
sketch14.MapMode = "FlatFace"
sketch14.AttachmentOffset = App.Placement(App.Vector(0, 0, -0.4 * 25.4), App.Rotation())
sketch14.addGeometry(Part.Circle(App.Vector(43.161919, -19.457238, 0), App.Vector(0, 0, 1), 2.54), False)
sketch14.addConstraint(Sketcher.Constraint("Diameter", 0, Q("0.2 in")))
sketch14.addConstraint(Sketcher.Constraint("DistanceX", -1, 1, 0, 3, Q("43.161919 mm")))
sketch14.addConstraint(Sketcher.Constraint("DistanceY", 0, 3, -1, 1, Q("19.457238 mm")))
pocket10 = body.newObject("PartDesign::Pocket", "Pocket009")
pocket10.Profile = sketch14
pocket10.Length = Q("0.1 in")
pocket10.Reversed = True

# Sketch on YZ plane
sketch15 = body.newObject("Sketcher::SketchObject", "Sketch014")
sketch15.AttachmentSupport = (doc.getObject("YZ_Plane"), [""])
sketch15.MapMode = "FlatFace"
sketch15.AttachmentOffset = App.Placement(App.Vector(0, 0, -0.2 * 25.4), App.Rotation())
add_polygon(sketch15, [(42.970355, -8.045319), (35.56, -8.045319), (35.56, -11.821559), (42.970355, -11.821559)])  # lines 0-3
sketch15.addConstraint(Sketcher.Constraint("Horizontal", 0))
sketch15.addConstraint(Sketcher.Constraint("Vertical", 1))
sketch15.addConstraint(Sketcher.Constraint("Horizontal", 2))
sketch15.addConstraint(Sketcher.Constraint("Vertical", 3))
sketch15.addConstraint(Sketcher.Constraint("DistanceX", -1, 1, 0, 2, Q("1.4 in")))
sketch15.addConstraint(Sketcher.Constraint("DistanceY", 1, 2, 1, 1, Q("3.77624 mm")))
sketch15.addConstraint(Sketcher.Constraint("DistanceX", 0, 2, 0, 1, Q("7.410355 mm")))
sketch15.addConstraint(Sketcher.Constraint("DistanceY", 0, 2, -1, 1, Q("8.045319 mm")))
pocket11 = body.newObject("PartDesign::Pocket", "Pocket010")
pocket11.Profile = sketch15
pocket11.Length = Q("0.1 in")

# Sketch on YZ plane
sketch16 = body.newObject("Sketcher::SketchObject", "Sketch015")
sketch16.AttachmentSupport = (doc.getObject("YZ_Plane"), [""])
sketch16.MapMode = "FlatFace"
sketch16.AttachmentOffset = App.Placement(App.Vector(0, 0, -0.2 * 25.4), App.Rotation())
add_polygon(sketch16, [(35.56, -11.821559), (35.56, -8.045319), (30.825459, -8.045319), (32.389655, -11.821559)])  # lines 0-3
sketch16.addConstraint(Sketcher.Constraint("Vertical", 0))
sketch16.addConstraint(Sketcher.Constraint("Horizontal", 1))
sketch16.addConstraint(Sketcher.Constraint("Horizontal", 3))
sketch16.addConstraint(Sketcher.Constraint("DistanceX", -1, 1, 0, 2, Q("1.4 in")))
sketch16.addConstraint(Sketcher.Constraint("DistanceX", 1, 2, 1, 1, Q("4.734541 mm")))
sketch16.addConstraint(Sketcher.Constraint("DistanceY", 0, 1, 0, 2, Q("3.77624 mm")))
sketch16.addConstraint(Sketcher.Constraint("DistanceX", 3, 1, 3, 2, Q("3.170345 mm")))
sketch16.addConstraint(Sketcher.Constraint("DistanceY", 0, 2, -1, 1, Q("8.045319 mm")))
pocket12 = body.newObject("PartDesign::Pocket", "Pocket011")
pocket12.Profile = sketch16
pocket12.Length = Q("0.39 in")

# Sketch on YZ plane
sketch17 = body.newObject("Sketcher::SketchObject", "Sketch016")
sketch17.AttachmentSupport = (doc.getObject("YZ_Plane"), [""])
sketch17.MapMode = "FlatFace"
sketch17.AttachmentOffset = App.Placement(App.Vector(0, 0, -0.4 * 25.4), App.Rotation())
sketch17.addGeometry(Part.Circle(App.Vector(22.86, -19.475319, 0), App.Vector(0, 0, 1), 1.7526), False)
sketch17.addConstraint(Sketcher.Constraint("Diameter", 0, Q("0.138 in")))
sketch17.addConstraint(Sketcher.Constraint("DistanceX", -1, 1, 0, 3, Q("0.9 in")))
sketch17.addConstraint(Sketcher.Constraint("DistanceY", 0, 3, -1, 1, Q("19.475319 mm")))
pocket13 = body.newObject("PartDesign::Pocket", "Pocket012")
pocket13.Profile = sketch17
pocket13.Length = Q("0.82 in")
pocket13.Reversed = True

# Sketch on YZ plane
sketch18 = body.newObject("Sketcher::SketchObject", "Sketch017")
sketch18.AttachmentSupport = (doc.getObject("YZ_Plane"), [""])
sketch18.MapMode = "FlatFace"
sketch18.addGeometry(Part.Circle(App.Vector(22.86, -19.475319, 0), App.Vector(0, 0, 1), 2.921), False)
sketch18.addConstraint(Sketcher.Constraint("Diameter", 0, Q("0.23 in")))
sketch18.addConstraint(Sketcher.Constraint("DistanceX", -1, 1, 0, 3, Q("0.9 in")))
sketch18.addConstraint(Sketcher.Constraint("DistanceY", 0, 3, -1, 1, Q("19.475319 mm")))
pocket14 = body.newObject("PartDesign::Pocket", "Pocket013")
pocket14.Profile = sketch18
pocket14.Length = Q("0.1 in")

doc.recompute()
